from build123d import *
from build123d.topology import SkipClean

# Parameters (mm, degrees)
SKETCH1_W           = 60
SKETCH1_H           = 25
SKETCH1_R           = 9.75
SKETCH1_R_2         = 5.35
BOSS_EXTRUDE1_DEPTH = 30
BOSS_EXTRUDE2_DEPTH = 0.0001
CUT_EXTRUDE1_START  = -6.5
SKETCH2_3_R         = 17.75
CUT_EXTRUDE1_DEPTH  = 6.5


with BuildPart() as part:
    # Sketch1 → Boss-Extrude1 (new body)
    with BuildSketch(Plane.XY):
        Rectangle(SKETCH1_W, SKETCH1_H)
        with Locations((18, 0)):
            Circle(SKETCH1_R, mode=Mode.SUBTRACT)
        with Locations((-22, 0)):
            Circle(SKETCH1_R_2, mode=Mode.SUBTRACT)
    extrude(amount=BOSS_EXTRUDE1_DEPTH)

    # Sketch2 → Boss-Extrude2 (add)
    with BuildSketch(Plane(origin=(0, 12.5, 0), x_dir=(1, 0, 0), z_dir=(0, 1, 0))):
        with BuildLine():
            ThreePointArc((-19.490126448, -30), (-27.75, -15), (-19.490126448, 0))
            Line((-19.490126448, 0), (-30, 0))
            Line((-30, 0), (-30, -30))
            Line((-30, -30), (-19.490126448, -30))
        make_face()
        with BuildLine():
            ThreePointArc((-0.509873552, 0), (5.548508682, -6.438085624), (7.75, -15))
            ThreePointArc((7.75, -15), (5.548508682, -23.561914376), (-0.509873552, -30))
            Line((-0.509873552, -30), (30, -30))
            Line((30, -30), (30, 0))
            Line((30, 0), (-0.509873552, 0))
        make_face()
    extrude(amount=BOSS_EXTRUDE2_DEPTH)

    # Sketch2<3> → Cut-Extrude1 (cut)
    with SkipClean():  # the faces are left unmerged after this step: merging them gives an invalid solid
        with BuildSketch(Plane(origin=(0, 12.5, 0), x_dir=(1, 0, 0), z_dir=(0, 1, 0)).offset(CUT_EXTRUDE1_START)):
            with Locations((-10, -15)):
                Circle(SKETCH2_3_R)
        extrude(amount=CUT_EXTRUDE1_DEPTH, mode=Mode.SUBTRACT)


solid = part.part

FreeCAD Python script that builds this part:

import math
import FreeCAD as App
import Part
import Sketcher
from FreeCAD import Vector

doc = App.newDocument("Part")
body = doc.addObject("PartDesign::Body", "Body")

# Sketch on XY plane
sketch1 = body.newObject("Sketcher::SketchObject", "Sketch")
sketch1.AttachmentSupport = (doc.getObject("XY_Plane"), [""])
sketch1.MapMode = "FlatFace"
sketch1.addGeometry(Part.LineSegment(Vector(-30, 12.5, 0), Vector(-30, -12.5, 0)), False)
sketch1.addGeometry(Part.LineSegment(Vector(-30, -12.5, 0), Vector(30, -12.5, 0)), False)
sketch1.addGeometry(Part.LineSegment(Vector(30, -12.5, 0), Vector(30, 12.5, 0)), False)
sketch1.addGeometry(Part.LineSegment(Vector(30, 12.5, 0), Vector(-30, 12.5, 0)), False)
sketch1.addGeometry(Part.Circle(Vector(-22, 0, 0), Vector(0, 0, 1), 5.35), False)
sketch1.addGeometry(Part.Circle(Vector(18, 0, 0), Vector(0, 0, 1), 9.75), False)
sketch1.addConstraint(Sketcher.Constraint("Coincident", 0, 2, 1, 1))
sketch1.addConstraint(Sketcher.Constraint("Coincident", 1, 2, 2, 1))
sketch1.addConstraint(Sketcher.Constraint("Coincident", 2, 2, 3, 1))
sketch1.addConstraint(Sketcher.Constraint("Coincident", 3, 2, 0, 1))
sketch1.addConstraint(Sketcher.Constraint("Vertical", 0))
sketch1.addConstraint(Sketcher.Constraint("Horizontal", 1))
sketch1.addConstraint(Sketcher.Constraint("Vertical", 2))
sketch1.addConstraint(Sketcher.Constraint("Horizontal", 3))
sketch1.addConstraint(Sketcher.Constraint("Symmetric", 0, 2, 2, 2, -1, 1))
sketch1.addConstraint(Sketcher.Constraint("PointOnObject", 4, 3, -1))
sketch1.addConstraint(Sketcher.Constraint("PointOnObject", 5, 3, -1))
sketch1.addConstraint(Sketcher.Constraint("Diameter", 4, 10.7))
sketch1.addConstraint(Sketcher.Constraint("Diameter", 5, 19.5))
sketch1.addConstraint(Sketcher.Constraint("DistanceX", 1, 1, 1, 2, 60.0))
sketch1.addConstraint(Sketcher.Constraint("DistanceY", 0, 2, 0, 1, 25.0))
sketch1.addConstraint(Sketcher.Constraint("DistanceX", 4, 3, -1, 1, 22.0))
sketch1.addConstraint(Sketcher.Constraint("DistanceX", -1, 1, 5, 3, 18.0))
pad1 = body.newObject("PartDesign::Pad", "Pad")
pad1.Profile = sketch1
pad1.Length = 30

# Sketch on XZ plane
sketch2 = body.newObject("Sketcher::SketchObject", "Sketch001")
sketch2.AttachmentSupport = (doc.getObject("XZ_Plane"), [""])
sketch2.MapMode = "FlatFace"
sketch2.AttachmentOffset = App.Placement(Vector(0, 0, -12.5), App.Rotation())
sketch2.addGeometry(Part.ArcOfCircle(Part.Circle(Vector(-10, 15, 0), Vector(0, 0, 1), 17.75), math.radians(122.320518), math.radians(237.679482)), False)
sketch2.addGeometry(Part.LineSegment(Vector(-19.490126, 0, 0), Vector(-30, 0, 0)), False)
sketch2.addGeometry(Part.LineSegment(Vector(-30, 0, 0), Vector(-30, 30, 0)), False)
sketch2.addGeometry(Part.LineSegment(Vector(-30, 30, 0), Vector(-19.490126, 30, 0)), False)
sketch2.addGeometry(Part.ArcOfCircle(Part.Circle(Vector(-10, 15, 0), Vector(0, 0, 1), 17.75), math.radians(-57.679482), math.radians(0)), False)
sketch2.addGeometry(Part.ArcOfCircle(Part.Circle(Vector(-10, 15, 0), Vector(0, 0, 1), 17.75), math.radians(0), math.radians(57.679482)), False)
sketch2.addGeometry(Part.LineSegment(Vector(-0.509874, 30, 0), Vector(30, 30, 0)), False)
sketch2.addGeometry(Part.LineSegment(Vector(30, 30, 0), Vector(30, 0, 0)), False)
sketch2.addGeometry(Part.LineSegment(Vector(30, 0, 0), Vector(-0.509874, 0, 0)), False)
sketch2.addConstraint(Sketcher.Constraint("Coincident", 0, 2, 1, 1))
sketch2.addConstraint(Sketcher.Constraint("Coincident", 1, 2, 2, 1))
sketch2.addConstraint(Sketcher.Constraint("Coincident", 2, 2, 3, 1))
sketch2.addConstraint(Sketcher.Constraint("Coincident", 3, 2, 0, 1))
sketch2.addConstraint(Sketcher.Constraint("Tangent", 4, 2, 5, 1))
sketch2.addConstraint(Sketcher.Constraint("Coincident", 5, 2, 6, 1))
sketch2.addConstraint(Sketcher.Constraint("Coincident", 6, 2, 7, 1))
sketch2.addConstraint(Sketcher.Constraint("Coincident", 7, 2, 8, 1))
sketch2.addConstraint(Sketcher.Constraint("Coincident", 8, 2, 4, 1))
sketch2.addConstraint(Sketcher.Constraint("Horizontal", 1))
sketch2.addConstraint(Sketcher.Constraint("Vertical", 2))
sketch2.addConstraint(Sketcher.Constraint("Horizontal", 3))
sketch2.addConstraint(Sketcher.Constraint("Horizontal", 6))
sketch2.addConstraint(Sketcher.Constraint("Vertical", 7))
sketch2.addConstraint(Sketcher.Constraint("Horizontal", 8))
sketch2.addConstraint(Sketcher.Constraint("Coincident", 4, 3, 0, 3))
sketch2.addConstraint(Sketcher.Constraint("Equal", 0, 4))
sketch2.addConstraint(Sketcher.Constraint("Equal", 4, 5))
sketch2.addConstraint(Sketcher.Constraint("Symmetric", 1, 2, 7, 2, -1, 1))
sketch2.addConstraint(Sketcher.Constraint("PointOnObject", 0, 2, -1))
sketch2.addConstraint(Sketcher.Constraint("Horizontal", 5, 3, 4, 2))
sketch2.addConstraint(Sketcher.Constraint("Horizontal", 3, 2, 5, 2))
sketch2.addConstraint(Sketcher.Constraint("Vertical", 0, 2, 3, 2))
sketch2.addConstraint(Sketcher.Constraint("DistanceY", 2, 1, 2, 2, 30.0))
sketch2.addConstraint(Sketcher.Constraint("Radius", 0, 17.75))
sketch2.addConstraint(Sketcher.Constraint("DistanceX", 0, 3, -1, 1, 10.0))
sketch2.addConstraint(Sketcher.Constraint("DistanceX", 1, 2, -1, 1, 30.0))
pad2 = body.newObject("PartDesign::Pad", "Pad001")
pad2.Profile = sketch2
pad2.Length = 0.0001
pad2.Reversed = True

# Sketch on XZ plane
sketch3 = body.newObject("Sketcher::SketchObject", "Sketch002")
sketch3.AttachmentSupport = (doc.getObject("XZ_Plane"), [""])
sketch3.MapMode = "FlatFace"
sketch3.AttachmentOffset = App.Placement(Vector(0, 0, -6), App.Rotation())
sketch3.addGeometry(Part.Circle(Vector(-10, 15, 0), Vector(0, 0, 1), 17.75), False)
sketch3.addConstraint(Sketcher.Constraint("Diameter", 0, 35.5))
sketch3.addConstraint(Sketcher.Constraint("DistanceX", 0, 3, -1, 1, 10.0))
sketch3.addConstraint(Sketcher.Constraint("DistanceY", -1, 1, 0, 3, 15.0))
pocket1 = body.newObject("PartDesign::Pocket", "Pocket")
pocket1.Profile = sketch3
pocket1.Length = 6.5

doc.recompute()
